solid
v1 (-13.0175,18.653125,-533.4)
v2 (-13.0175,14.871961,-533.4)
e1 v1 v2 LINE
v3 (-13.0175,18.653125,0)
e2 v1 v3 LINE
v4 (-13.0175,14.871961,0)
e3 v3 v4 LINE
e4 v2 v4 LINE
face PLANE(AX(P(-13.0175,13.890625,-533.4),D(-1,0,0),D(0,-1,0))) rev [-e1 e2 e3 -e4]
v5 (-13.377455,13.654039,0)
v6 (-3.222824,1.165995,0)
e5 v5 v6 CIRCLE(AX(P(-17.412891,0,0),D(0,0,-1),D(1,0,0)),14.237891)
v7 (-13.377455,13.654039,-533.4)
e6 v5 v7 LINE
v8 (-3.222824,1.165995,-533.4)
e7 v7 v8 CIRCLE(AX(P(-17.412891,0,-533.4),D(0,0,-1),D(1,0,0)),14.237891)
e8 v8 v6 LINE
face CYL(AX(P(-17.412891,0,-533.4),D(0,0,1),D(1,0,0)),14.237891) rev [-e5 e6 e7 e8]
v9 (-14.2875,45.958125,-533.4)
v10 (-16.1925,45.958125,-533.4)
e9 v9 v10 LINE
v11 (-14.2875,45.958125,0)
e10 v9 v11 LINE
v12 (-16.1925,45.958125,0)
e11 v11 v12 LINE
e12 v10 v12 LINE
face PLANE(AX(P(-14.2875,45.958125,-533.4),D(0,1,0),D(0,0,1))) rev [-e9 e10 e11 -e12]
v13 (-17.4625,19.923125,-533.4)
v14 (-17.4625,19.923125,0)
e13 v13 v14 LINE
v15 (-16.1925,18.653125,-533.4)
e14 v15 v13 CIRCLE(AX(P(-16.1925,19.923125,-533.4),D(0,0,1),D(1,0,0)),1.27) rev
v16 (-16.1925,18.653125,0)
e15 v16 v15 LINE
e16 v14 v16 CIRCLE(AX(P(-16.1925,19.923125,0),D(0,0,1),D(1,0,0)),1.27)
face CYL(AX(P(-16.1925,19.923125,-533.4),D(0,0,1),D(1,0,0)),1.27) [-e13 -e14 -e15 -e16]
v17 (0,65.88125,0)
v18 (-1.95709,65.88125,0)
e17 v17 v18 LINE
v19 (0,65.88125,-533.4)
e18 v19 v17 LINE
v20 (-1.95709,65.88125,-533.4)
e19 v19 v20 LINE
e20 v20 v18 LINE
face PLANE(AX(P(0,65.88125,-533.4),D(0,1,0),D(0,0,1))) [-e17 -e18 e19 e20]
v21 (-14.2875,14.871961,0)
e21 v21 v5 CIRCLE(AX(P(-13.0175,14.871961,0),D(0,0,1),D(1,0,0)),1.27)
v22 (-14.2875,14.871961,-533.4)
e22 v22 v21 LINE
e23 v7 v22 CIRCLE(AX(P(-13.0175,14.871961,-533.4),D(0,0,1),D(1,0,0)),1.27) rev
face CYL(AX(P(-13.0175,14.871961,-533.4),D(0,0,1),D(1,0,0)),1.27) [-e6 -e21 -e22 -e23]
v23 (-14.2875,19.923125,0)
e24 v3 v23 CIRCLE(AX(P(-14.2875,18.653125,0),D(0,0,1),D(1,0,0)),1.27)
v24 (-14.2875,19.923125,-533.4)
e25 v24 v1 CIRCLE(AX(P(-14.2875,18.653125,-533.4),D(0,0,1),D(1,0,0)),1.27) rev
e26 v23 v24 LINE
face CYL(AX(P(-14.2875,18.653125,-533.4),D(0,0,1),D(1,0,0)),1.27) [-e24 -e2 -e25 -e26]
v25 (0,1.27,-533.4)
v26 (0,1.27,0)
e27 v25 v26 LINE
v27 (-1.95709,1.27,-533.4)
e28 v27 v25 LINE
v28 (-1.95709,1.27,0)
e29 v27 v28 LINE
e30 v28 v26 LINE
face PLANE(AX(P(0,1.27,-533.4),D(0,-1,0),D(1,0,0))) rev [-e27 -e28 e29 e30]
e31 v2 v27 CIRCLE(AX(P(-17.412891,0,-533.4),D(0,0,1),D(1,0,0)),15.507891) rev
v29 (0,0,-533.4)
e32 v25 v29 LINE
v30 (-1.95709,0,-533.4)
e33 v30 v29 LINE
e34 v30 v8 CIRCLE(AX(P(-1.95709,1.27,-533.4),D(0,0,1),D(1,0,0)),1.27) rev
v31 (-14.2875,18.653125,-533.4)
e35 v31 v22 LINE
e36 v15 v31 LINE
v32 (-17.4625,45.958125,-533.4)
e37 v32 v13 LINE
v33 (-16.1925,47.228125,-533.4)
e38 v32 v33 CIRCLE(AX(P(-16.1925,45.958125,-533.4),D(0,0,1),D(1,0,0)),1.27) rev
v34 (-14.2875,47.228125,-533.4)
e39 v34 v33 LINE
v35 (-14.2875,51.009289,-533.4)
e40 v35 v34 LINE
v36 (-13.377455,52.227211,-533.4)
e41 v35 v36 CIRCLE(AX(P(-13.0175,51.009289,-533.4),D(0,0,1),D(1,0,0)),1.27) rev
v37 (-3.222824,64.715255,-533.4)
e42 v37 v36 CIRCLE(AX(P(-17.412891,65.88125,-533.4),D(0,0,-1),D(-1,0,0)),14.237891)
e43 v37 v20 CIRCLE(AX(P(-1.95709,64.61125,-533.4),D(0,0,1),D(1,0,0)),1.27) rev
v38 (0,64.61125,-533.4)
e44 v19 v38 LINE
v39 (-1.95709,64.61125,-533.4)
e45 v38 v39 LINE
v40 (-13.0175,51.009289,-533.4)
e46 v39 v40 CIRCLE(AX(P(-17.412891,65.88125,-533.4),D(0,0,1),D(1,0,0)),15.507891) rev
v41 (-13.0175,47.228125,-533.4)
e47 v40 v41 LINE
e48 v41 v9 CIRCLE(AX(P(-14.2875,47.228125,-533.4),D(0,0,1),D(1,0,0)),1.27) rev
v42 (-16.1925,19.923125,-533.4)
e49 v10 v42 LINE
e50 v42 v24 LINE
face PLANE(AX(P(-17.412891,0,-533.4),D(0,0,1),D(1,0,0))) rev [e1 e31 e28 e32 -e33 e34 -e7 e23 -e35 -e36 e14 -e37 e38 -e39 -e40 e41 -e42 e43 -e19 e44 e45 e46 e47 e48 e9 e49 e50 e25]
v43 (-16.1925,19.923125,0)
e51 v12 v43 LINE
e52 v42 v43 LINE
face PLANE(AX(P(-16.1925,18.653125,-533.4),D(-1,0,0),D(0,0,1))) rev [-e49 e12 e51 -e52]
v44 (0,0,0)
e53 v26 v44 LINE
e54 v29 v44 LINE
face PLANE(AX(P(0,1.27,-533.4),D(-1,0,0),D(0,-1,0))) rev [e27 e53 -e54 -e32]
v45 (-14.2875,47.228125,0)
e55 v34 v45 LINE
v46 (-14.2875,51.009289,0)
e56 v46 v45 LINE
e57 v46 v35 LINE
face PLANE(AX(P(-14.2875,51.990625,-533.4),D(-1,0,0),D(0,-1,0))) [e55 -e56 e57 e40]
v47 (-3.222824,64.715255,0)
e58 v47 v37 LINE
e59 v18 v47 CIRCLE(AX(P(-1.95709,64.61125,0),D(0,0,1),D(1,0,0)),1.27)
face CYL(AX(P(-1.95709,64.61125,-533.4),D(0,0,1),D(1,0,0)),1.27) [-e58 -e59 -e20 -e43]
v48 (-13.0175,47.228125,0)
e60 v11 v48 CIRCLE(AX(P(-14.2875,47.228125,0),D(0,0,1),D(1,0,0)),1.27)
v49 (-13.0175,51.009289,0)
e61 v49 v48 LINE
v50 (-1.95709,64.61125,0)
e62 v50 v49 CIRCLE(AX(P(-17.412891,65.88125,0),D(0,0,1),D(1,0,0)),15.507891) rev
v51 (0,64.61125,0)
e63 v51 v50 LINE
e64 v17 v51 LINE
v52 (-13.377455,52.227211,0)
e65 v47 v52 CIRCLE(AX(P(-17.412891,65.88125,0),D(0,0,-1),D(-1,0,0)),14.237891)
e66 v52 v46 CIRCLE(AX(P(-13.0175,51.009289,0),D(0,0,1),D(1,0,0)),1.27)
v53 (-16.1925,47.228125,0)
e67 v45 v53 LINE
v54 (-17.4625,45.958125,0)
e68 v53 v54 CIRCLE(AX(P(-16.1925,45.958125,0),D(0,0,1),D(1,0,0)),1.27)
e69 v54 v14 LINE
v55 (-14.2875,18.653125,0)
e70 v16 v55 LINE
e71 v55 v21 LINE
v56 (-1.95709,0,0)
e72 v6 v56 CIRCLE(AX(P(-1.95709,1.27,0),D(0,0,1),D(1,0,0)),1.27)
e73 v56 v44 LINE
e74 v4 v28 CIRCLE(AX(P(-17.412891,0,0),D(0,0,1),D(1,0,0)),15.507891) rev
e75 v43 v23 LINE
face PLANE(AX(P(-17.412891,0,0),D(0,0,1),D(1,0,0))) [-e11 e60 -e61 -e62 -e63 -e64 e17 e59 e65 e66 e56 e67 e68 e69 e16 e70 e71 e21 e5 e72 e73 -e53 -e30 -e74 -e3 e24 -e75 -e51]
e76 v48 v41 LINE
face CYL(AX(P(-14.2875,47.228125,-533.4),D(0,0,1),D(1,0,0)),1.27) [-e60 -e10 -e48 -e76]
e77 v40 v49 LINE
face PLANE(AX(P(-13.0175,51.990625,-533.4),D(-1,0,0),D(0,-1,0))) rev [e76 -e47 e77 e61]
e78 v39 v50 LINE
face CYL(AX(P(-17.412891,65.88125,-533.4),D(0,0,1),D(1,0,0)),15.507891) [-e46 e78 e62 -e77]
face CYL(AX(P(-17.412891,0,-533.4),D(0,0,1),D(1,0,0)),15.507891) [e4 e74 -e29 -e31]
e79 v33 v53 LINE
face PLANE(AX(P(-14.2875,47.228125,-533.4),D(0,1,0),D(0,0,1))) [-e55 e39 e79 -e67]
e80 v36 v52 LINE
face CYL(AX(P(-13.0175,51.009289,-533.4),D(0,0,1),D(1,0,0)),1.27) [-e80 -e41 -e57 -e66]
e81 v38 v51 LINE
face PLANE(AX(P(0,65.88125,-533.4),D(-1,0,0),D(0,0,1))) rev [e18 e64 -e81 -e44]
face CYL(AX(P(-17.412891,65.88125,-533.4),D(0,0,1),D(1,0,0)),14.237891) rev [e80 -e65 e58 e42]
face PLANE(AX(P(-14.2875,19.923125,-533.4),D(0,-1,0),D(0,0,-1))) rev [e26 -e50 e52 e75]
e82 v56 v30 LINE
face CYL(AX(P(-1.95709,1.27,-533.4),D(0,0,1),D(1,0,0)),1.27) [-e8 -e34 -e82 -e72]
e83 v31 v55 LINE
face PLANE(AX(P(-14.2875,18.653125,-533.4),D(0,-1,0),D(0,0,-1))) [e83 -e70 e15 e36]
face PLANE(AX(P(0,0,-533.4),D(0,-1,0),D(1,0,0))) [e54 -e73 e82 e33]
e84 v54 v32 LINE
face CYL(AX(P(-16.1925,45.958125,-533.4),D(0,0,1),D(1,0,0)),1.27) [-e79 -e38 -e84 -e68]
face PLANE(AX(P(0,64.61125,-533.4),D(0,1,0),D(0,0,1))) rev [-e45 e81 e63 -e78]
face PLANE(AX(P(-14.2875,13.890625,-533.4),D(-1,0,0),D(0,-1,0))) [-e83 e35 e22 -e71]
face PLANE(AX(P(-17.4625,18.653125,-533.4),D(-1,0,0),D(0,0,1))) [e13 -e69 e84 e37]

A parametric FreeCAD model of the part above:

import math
import FreeCAD as App
import Part
import Sketcher

V = App.Vector
Q = App.Units.Quantity


def edges_at(feature, points):
    """Names of the edges that pass closest to the given points."""
    edges = feature.Shape.Edges
    near = lambda p: min(range(len(edges)), key=lambda i: edges[i].distToShape(Part.Vertex(*p))[0])
    return sorted({f"Edge{near(p) + 1}" for p in points})

doc = App.newDocument("Part")
body = doc.addObject("PartDesign::Body", "Body")

sketch1 = body.newObject("Sketcher::SketchObject", "Sketch")
sketch1.AttachmentSupport = (doc.getObject("XY_Plane"), [""])
sketch1.MapMode = "FlatFace"
sketch1.addGeometry(Part.LineSegment(V(-3.2, 0, 0), V(0, 0, 0)), False)
sketch1.addGeometry(Part.LineSegment(V(0, 0, 0), V(0, 1.3, 0)), False)
sketch1.addGeometry(Part.LineSegment(V(0, 1.3, 0), V(-2, 1.3, 0)), False)
sketch1.addGeometry(Part.ArcOfCircle(Part.Circle(V(-17.4, 0, 0), V(0, 0, 1), 15.5), math.radians(5), math.radians(74)), False)
sketch1.addGeometry(Part.LineSegment(V(-13, 14.9, 0), V(-13, 19.9, 0)), False)
sketch1.addGeometry(Part.LineSegment(V(-13, 19.9, 0), V(-16.2, 19.9, 0)), False)
sketch1.addGeometry(Part.LineSegment(V(-16.2, 19.9, 0), V(-16.2, 46, 0)), False)
sketch1.addGeometry(Part.LineSegment(V(-16.2, 46, 0), V(-13, 46, 0)), False)
sketch1.addGeometry(Part.LineSegment(V(-13, 46, 0), V(-13, 51, 0)), False)
sketch1.addGeometry(Part.ArcOfCircle(Part.Circle(V(-17.4, 65.9, 0), V(0, 0, 1), 15.5), math.radians(-74), math.radians(-5)), False)
sketch1.addGeometry(Part.LineSegment(V(-2, 64.6, 0), V(0, 64.6, 0)), False)
sketch1.addGeometry(Part.LineSegment(V(0, 64.6, 0), V(0, 65.9, 0)), False)
sketch1.addGeometry(Part.LineSegment(V(0, 65.9, 0), V(-3.2, 65.9, 0)), False)
sketch1.addGeometry(Part.ArcOfCircle(Part.Circle(V(-17.4, 65.9, 0), V(0, 0, 1), 14.2), math.radians(-77), math.radians(0)), False)
sketch1.addGeometry(Part.LineSegment(V(-14.3, 52, 0), V(-14.3, 47.2, 0)), False)
sketch1.addGeometry(Part.LineSegment(V(-14.3, 47.2, 0), V(-17.5, 47.2, 0)), False)
sketch1.addGeometry(Part.LineSegment(V(-17.5, 47.2, 0), V(-17.5, 18.7, 0)), False)
sketch1.addGeometry(Part.LineSegment(V(-17.5, 18.7, 0), V(-14.3, 18.7, 0)), False)
sketch1.addGeometry(Part.LineSegment(V(-14.3, 18.7, 0), V(-14.3, 13.9, 0)), False)
sketch1.addGeometry(Part.ArcOfCircle(Part.Circle(V(-17.4, 0, 0), V(0, 0, 1), 14.2), math.radians(0), math.radians(77)), False)
sketch1.addConstraint(Sketcher.Constraint("Coincident", 0, 2, 1, 1))
sketch1.addConstraint(Sketcher.Constraint("Coincident", 1, 2, 2, 1))
sketch1.addConstraint(Sketcher.Constraint("Coincident", 2, 2, 3, 1))
sketch1.addConstraint(Sketcher.Constraint("Coincident", 3, 2, 4, 1))
sketch1.addConstraint(Sketcher.Constraint("Coincident", 4, 2, 5, 1))
sketch1.addConstraint(Sketcher.Constraint("Coincident", 5, 2, 6, 1))
sketch1.addConstraint(Sketcher.Constraint("Coincident", 6, 2, 7, 1))
sketch1.addConstraint(Sketcher.Constraint("Coincident", 7, 2, 8, 1))
sketch1.addConstraint(Sketcher.Constraint("Coincident", 8, 2, 9, 1))
sketch1.addConstraint(Sketcher.Constraint("Coincident", 9, 2, 10, 1))
sketch1.addConstraint(Sketcher.Constraint("Coincident", 10, 2, 11, 1))
sketch1.addConstraint(Sketcher.Constraint("Coincident", 11, 2, 12, 1))
sketch1.addConstraint(Sketcher.Constraint("Coincident", 12, 2, 13, 2))
sketch1.addConstraint(Sketcher.Constraint("Coincident", 13, 1, 14, 1))
sketch1.addConstraint(Sketcher.Constraint("Coincident", 14, 2, 15, 1))
sketch1.addConstraint(Sketcher.Constraint("Coincident", 15, 2, 16, 1))
sketch1.addConstraint(Sketcher.Constraint("Coincident", 16, 2, 17, 1))
sketch1.addConstraint(Sketcher.Constraint("Coincident", 17, 2, 18, 1))
sketch1.addConstraint(Sketcher.Constraint("Coincident", 18, 2, 19, 2))
sketch1.addConstraint(Sketcher.Constraint("Coincident", 19, 1, 0, 1))
sketch1.addConstraint(Sketcher.Constraint("Horizontal", 0))
sketch1.addConstraint(Sketcher.Constraint("Vertical", 1))
sketch1.addConstraint(Sketcher.Constraint("Horizontal", 2))
sketch1.addConstraint(Sketcher.Constraint("Vertical", 4))
sketch1.addConstraint(Sketcher.Constraint("Horizontal", 5))
sketch1.addConstraint(Sketcher.Constraint("Vertical", 6))
sketch1.addConstraint(Sketcher.Constraint("Horizontal", 7))
sketch1.addConstraint(Sketcher.Constraint("Vertical", 8))
sketch1.addConstraint(Sketcher.Constraint("Horizontal", 10))
sketch1.addConstraint(Sketcher.Constraint("Vertical", 11))
sketch1.addConstraint(Sketcher.Constraint("Horizontal", 12))
sketch1.addConstraint(Sketcher.Constraint("Vertical", 14))
sketch1.addConstraint(Sketcher.Constraint("Horizontal", 15))
sketch1.addConstraint(Sketcher.Constraint("Vertical", 16))
sketch1.addConstraint(Sketcher.Constraint("Horizontal", 17))
sketch1.addConstraint(Sketcher.Constraint("Vertical", 18))
sketch1.addConstraint(Sketcher.Constraint("Coincident", 0, 2, -1, 1))
sketch1.addConstraint(Sketcher.Constraint("Coincident", 13, 3, 9, 3))
sketch1.addConstraint(Sketcher.Constraint("Coincident", 19, 3, 3, 3))
sketch1.addConstraint(Sketcher.Constraint("Equal", 3, 9))
sketch1.addConstraint(Sketcher.Constraint("Equal", 13, 19))
sketch1.addConstraint(Sketcher.Constraint("PointOnObject", 3, 3, -1))
sketch1.addConstraint(Sketcher.Constraint("PointOnObject", 10, 2, -2))
sketch1.addConstraint(Sketcher.Constraint("Horizontal", 13, 3, 11, 2))
sketch1.addConstraint(Sketcher.Constraint("Vertical", 3, 3, 9, 3))
sketch1.addConstraint(Sketcher.Constraint("Vertical", 4, 2, 7, 2))
sketch1.addConstraint(Sketcher.Constraint("Vertical", 2, 2, 9, 2))
sketch1.addConstraint(Sketcher.Constraint("Vertical", 14, 2, 17, 2))
sketch1.addConstraint(Sketcher.Constraint("Equal", 0, 5))
sketch1.addConstraint(Sketcher.Constraint("Equal", 12, 15))
sketch1.addConstraint(Sketcher.Constraint("Equal", 4, 8))
sketch1.addConstraint(Sketcher.Constraint("Equal", 14, 18))
sketch1.addConstraint(Sketcher.Constraint("DistanceY", 1, 1, 1, 2, Q("0.05 in")))
sketch1.addConstraint(Sketcher.Constraint("DistanceX", 0, 1, 0, 2, Q("0.125 in")))
sketch1.addConstraint(Sketcher.Constraint("DistanceY", 6, 1, 6, 2, Q("1.025 in")))
sketch1.addConstraint(Sketcher.Constraint("DistanceY", 14, 2, 14, 1, Q("0.1875 in")))
sketch1.addConstraint(Sketcher.Constraint("DistanceY", 16, 2, 16, 1, Q("1.125 in")))
sketch1.addConstraint(Sketcher.Constraint("DistanceX", 13, 1, 8, 2, Q("0.05 in")))
sketch1.addConstraint(Sketcher.Constraint("DistanceY", -1, 1, 9, 3, Q("2.59375 in")))
sketch1.addConstraint(Sketcher.Constraint("DistanceX", 13, 1, -1, 1, Q("0.5625 in")))
sketch1.addConstraint(Sketcher.Constraint("Radius", 3, Q("15.507891 mm")))
pad1 = body.newObject("PartDesign::Pad", "Pad")
pad1.Profile = sketch1
pad1.Length = Q("21 in")
pad1.Reversed = True
doc.recompute()

fillet = body.newObject("PartDesign::Fillet", "Fillet")
fillet.Base = (pad1, edges_at(pad1, [
    (-3.175, 0, -266.7),
    (-14.287, 13.891, -266.7),
    (-17.462, 18.653, -266.7),
    (-17.462, 47.228, -266.7),
    (-14.287, 51.991, -266.7),
    (-3.175, 65.881, -266.7),
    (-13.018, 45.958, -266.7),
    (-13.018, 19.923, -266.7),
]))
fillet.Radius = Q("0.05 in")

doc.recompute()
